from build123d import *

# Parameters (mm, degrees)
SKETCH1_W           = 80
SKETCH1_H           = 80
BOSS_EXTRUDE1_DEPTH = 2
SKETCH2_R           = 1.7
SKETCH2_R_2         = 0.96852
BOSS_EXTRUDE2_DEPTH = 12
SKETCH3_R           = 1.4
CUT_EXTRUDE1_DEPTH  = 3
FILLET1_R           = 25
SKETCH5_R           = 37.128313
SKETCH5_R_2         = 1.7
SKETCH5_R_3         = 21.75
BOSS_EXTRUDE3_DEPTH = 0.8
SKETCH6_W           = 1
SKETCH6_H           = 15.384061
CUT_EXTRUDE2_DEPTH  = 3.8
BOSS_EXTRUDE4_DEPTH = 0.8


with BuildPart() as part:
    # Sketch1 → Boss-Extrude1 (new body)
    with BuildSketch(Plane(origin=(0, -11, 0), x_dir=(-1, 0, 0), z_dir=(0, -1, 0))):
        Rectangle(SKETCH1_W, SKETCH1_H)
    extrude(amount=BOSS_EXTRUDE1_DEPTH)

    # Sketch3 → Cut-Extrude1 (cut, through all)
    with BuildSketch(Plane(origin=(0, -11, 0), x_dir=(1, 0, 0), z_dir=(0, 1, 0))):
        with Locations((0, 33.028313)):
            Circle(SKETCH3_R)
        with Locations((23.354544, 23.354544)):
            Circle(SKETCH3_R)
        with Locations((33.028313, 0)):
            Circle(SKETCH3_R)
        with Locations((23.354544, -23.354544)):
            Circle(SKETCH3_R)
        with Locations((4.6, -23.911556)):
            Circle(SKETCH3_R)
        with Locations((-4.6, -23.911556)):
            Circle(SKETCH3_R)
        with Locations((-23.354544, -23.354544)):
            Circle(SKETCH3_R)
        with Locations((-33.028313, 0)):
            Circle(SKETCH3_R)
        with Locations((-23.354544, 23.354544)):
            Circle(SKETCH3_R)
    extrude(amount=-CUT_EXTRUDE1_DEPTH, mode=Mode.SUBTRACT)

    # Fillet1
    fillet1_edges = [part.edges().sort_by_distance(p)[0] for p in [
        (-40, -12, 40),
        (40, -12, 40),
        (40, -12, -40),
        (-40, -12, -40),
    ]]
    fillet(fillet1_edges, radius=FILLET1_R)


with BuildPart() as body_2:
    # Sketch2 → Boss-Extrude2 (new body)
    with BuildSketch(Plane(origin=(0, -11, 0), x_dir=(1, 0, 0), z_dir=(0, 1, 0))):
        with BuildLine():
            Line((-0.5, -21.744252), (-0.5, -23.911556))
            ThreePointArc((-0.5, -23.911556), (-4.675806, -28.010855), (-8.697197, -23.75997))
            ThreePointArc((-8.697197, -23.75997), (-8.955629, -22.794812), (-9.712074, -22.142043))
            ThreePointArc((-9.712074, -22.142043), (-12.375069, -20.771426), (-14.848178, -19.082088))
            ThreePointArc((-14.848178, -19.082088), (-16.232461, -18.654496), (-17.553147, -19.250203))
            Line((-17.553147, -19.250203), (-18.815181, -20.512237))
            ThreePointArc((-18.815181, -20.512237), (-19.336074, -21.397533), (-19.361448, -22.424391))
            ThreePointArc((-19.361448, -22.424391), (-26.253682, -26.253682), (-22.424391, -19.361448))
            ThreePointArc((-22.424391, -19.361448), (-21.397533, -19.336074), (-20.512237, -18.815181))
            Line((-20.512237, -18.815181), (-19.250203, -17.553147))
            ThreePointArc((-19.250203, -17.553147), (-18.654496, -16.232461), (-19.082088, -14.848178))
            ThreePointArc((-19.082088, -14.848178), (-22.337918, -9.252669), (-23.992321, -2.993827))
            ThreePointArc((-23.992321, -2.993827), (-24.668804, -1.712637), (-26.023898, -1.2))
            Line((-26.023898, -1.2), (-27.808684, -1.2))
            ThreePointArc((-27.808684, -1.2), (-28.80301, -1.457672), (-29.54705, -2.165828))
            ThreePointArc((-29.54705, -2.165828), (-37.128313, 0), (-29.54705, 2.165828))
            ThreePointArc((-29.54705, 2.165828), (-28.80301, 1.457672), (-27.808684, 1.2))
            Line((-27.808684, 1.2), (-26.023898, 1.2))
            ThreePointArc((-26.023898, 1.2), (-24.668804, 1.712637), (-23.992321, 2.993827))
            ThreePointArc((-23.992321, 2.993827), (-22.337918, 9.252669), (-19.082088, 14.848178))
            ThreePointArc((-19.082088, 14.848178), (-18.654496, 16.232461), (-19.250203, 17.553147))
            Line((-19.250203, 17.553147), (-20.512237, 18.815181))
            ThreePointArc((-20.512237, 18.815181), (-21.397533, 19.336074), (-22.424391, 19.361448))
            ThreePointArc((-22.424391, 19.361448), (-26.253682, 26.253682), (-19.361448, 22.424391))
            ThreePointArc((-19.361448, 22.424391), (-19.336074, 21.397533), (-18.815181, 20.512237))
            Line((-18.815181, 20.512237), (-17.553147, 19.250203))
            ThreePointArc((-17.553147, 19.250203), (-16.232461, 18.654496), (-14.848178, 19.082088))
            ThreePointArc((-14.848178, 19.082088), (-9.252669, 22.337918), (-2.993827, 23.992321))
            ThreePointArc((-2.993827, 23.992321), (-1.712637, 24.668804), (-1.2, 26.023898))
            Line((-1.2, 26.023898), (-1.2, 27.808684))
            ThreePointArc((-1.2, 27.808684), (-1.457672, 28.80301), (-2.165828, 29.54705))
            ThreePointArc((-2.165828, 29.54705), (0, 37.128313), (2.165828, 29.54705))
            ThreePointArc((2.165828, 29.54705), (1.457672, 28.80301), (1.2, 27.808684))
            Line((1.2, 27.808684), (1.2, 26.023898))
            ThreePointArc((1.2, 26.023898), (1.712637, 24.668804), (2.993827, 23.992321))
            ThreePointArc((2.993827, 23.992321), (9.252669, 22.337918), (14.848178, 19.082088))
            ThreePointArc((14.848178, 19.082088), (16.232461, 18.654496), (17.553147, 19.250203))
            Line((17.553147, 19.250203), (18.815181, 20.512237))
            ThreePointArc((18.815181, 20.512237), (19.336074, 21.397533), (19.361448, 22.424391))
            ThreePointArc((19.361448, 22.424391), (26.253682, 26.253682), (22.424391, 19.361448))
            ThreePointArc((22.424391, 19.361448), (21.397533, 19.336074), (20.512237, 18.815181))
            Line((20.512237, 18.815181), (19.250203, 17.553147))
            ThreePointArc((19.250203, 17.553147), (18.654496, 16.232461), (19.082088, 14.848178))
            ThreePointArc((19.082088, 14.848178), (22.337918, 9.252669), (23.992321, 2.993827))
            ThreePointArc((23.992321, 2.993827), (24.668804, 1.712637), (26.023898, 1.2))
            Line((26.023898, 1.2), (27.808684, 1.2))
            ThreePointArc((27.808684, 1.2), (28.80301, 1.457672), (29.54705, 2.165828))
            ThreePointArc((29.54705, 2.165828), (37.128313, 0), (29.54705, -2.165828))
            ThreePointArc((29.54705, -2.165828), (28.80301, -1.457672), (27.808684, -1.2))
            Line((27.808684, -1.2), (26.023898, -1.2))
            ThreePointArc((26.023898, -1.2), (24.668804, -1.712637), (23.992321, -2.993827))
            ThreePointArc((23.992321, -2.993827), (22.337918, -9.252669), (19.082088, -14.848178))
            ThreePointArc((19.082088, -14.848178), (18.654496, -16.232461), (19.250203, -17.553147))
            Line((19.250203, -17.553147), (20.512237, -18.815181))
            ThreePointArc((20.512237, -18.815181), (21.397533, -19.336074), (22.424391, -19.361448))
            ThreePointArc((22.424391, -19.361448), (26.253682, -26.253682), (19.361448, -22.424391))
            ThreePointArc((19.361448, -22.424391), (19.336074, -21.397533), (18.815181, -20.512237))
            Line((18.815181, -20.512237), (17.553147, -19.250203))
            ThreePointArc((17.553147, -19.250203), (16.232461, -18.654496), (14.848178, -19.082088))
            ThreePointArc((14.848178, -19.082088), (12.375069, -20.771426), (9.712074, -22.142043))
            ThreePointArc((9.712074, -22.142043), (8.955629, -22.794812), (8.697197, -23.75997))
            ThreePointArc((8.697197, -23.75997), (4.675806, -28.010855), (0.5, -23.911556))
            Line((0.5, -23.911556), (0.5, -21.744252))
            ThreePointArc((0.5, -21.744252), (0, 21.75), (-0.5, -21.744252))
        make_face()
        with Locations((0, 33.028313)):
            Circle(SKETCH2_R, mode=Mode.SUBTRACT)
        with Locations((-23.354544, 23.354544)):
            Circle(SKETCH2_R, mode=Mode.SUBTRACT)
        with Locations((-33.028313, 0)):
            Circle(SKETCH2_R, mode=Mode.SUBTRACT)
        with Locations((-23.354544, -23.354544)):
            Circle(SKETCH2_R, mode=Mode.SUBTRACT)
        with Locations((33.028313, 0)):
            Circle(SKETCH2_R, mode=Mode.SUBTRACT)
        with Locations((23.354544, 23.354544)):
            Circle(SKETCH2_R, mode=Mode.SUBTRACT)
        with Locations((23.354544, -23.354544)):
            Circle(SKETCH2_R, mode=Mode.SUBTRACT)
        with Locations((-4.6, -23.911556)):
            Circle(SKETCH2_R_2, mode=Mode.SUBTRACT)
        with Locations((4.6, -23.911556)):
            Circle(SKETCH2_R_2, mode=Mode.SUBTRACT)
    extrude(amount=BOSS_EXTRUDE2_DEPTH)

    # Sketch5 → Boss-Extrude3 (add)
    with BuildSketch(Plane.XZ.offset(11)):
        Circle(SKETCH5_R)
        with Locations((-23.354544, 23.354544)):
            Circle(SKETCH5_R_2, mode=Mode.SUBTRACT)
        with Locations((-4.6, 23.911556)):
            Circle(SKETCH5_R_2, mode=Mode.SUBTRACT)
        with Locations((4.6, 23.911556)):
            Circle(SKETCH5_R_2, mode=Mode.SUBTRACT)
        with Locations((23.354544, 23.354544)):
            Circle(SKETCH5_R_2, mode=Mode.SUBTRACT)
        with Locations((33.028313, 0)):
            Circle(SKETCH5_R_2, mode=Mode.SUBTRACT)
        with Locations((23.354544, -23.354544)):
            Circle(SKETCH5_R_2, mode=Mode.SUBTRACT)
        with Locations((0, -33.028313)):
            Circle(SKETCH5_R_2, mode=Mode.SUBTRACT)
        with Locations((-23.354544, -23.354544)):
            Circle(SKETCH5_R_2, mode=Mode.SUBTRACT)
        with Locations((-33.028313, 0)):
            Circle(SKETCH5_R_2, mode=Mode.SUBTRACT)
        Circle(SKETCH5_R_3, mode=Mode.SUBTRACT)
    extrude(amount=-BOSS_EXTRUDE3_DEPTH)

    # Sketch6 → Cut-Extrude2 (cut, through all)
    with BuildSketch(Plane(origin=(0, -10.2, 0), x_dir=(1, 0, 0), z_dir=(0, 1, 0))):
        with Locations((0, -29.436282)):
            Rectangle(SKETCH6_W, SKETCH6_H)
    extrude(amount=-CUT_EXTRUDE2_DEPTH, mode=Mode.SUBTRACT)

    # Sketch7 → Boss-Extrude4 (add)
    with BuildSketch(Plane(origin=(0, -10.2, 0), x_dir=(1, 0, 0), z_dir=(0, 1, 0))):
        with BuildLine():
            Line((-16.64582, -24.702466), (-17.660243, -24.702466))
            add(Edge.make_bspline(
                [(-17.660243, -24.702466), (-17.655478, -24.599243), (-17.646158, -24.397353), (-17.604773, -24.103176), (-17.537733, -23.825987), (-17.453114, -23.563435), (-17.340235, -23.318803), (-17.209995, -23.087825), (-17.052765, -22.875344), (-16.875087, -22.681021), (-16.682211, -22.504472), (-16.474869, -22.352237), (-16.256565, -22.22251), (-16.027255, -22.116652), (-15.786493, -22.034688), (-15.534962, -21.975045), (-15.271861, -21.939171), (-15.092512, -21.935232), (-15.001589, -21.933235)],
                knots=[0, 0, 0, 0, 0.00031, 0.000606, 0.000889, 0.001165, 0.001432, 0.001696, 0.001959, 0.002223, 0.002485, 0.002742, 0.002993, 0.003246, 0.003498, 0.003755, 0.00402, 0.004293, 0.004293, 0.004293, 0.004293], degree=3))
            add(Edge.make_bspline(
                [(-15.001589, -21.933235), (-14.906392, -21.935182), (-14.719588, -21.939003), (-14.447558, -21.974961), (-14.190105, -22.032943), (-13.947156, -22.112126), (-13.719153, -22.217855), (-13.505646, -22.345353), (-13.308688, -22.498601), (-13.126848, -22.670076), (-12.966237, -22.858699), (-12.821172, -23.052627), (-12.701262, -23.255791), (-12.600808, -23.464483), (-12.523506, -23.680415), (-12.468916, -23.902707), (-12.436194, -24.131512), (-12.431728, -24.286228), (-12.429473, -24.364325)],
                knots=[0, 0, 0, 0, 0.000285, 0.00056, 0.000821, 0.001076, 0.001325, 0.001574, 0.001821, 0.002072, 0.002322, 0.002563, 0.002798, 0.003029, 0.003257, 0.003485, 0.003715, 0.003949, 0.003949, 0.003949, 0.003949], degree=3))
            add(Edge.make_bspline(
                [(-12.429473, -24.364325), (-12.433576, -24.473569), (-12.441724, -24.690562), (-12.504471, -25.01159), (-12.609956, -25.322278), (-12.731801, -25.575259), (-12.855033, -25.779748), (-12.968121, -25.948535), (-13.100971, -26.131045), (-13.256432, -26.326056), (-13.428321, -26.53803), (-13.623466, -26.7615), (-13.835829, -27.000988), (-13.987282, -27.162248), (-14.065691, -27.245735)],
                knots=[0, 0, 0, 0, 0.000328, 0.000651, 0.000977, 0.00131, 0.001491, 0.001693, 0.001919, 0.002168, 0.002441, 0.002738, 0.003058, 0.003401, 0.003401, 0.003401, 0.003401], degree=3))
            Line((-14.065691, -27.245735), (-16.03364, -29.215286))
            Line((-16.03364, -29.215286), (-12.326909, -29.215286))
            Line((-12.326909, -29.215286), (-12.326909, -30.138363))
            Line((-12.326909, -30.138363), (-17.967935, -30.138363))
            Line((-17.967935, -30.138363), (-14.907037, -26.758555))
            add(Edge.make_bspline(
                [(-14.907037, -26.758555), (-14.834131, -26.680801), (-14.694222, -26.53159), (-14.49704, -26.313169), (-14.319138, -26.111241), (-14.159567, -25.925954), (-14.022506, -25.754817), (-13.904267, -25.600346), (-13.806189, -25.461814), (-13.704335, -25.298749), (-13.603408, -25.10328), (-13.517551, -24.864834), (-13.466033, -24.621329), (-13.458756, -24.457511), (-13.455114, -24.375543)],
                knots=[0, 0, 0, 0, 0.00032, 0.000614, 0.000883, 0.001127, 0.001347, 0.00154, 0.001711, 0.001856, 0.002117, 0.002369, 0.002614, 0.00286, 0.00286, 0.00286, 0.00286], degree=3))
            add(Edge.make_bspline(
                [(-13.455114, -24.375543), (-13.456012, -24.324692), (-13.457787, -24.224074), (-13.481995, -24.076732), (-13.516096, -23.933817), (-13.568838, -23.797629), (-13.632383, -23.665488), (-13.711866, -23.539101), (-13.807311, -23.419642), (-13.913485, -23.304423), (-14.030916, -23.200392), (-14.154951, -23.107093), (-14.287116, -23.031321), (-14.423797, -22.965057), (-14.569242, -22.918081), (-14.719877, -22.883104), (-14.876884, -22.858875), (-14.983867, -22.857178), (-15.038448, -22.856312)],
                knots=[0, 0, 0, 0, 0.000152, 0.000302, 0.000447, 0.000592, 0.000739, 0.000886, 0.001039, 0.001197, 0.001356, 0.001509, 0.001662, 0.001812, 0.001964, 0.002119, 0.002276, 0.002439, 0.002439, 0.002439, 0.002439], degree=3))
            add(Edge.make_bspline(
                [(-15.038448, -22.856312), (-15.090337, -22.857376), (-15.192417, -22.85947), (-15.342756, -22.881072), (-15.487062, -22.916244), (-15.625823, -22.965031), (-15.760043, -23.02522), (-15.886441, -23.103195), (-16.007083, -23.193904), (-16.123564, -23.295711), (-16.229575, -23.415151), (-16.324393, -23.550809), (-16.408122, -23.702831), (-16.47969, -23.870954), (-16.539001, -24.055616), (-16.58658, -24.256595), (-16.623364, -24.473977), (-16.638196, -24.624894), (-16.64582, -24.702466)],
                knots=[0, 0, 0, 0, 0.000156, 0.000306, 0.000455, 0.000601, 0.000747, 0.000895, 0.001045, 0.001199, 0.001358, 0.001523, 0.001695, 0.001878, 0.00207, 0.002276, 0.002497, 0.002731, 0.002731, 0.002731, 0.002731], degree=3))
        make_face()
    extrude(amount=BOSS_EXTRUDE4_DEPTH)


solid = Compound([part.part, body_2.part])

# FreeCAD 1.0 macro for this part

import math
import FreeCAD as App
import Part
import Sketcher


def edges_at(feature, points):
    """Names of the edges that pass closest to the given points."""
    edges = feature.Shape.Edges
    near = lambda p: min(range(len(edges)), key=lambda i: edges[i].distToShape(Part.Vertex(*p))[0])
    return sorted({f"Edge{near(p) + 1}" for p in points})


def add_polygon(sketch, points):
    """Adds a closed chain of lines whose ends are joined by coincident constraints."""
    first, n = sketch.GeometryCount, len(points)
    for a, b in zip(points, points[1:] + points[:1]):
        sketch.addGeometry(Part.LineSegment(App.Vector(*a, 0), App.Vector(*b, 0)), False)
    for i in range(n):
        sketch.addConstraint(Sketcher.Constraint("Coincident", first + i, 2, first + (i + 1) % n, 1))

doc = App.newDocument("Part")
body = doc.addObject("PartDesign::Body", "Body")

# Sketch on XZ plane
sketch1 = body.newObject("Sketcher::SketchObject", "Sketch")
sketch1.AttachmentSupport = (doc.getObject("XZ_Plane"), [""])
sketch1.MapMode = "FlatFace"
sketch1.AttachmentOffset = App.Placement(App.Vector(0, 0, 11), App.Rotation())
add_polygon(sketch1, [(40, -40), (40, 40), (-40, 40), (-40, -40)])  # lines 0-3
sketch1.addConstraint(Sketcher.Constraint("Vertical", 0))
sketch1.addConstraint(Sketcher.Constraint("Horizontal", 1))
sketch1.addConstraint(Sketcher.Constraint("Vertical", 2))
sketch1.addConstraint(Sketcher.Constraint("Horizontal", 3))
sketch1.addConstraint(Sketcher.Constraint("Symmetric", 0, 2, 2, 2, -1, 1))
sketch1.addConstraint(Sketcher.Constraint("Equal", 3, 0))
sketch1.addConstraint(Sketcher.Constraint("DistanceX", 1, 2, 1, 1, 80.0))
pad1 = body.newObject("PartDesign::Pad", "Pad")
pad1.Profile = sketch1
pad1.Length = 2

# Sketch on XZ plane
sketch2 = body.newObject("Sketcher::SketchObject", "Sketch001")
sketch2.AttachmentSupport = (doc.getObject("XZ_Plane"), [""])
sketch2.MapMode = "FlatFace"
sketch2.AttachmentOffset = App.Placement(App.Vector(0, 0, 11), App.Rotation())
sketch2.addGeometry(Part.Circle(App.Vector(0, -33.028313, 0), App.Vector(0, 0, 1), 1.4), False)
sketch2.addGeometry(Part.Circle(App.Vector(23.354544, -23.354544, 0), App.Vector(0, 0, 1), 1.4), False)
sketch2.addGeometry(Part.Circle(App.Vector(33.028313, 0, 0), App.Vector(0, 0, 1), 1.4), False)
sketch2.addGeometry(Part.Circle(App.Vector(23.354544, 23.354544, 0), App.Vector(0, 0, 1), 1.4), False)
sketch2.addGeometry(Part.Circle(App.Vector(4.6, 23.911556, 0), App.Vector(0, 0, 1), 1.4), False)
sketch2.addGeometry(Part.Circle(App.Vector(-4.6, 23.911556, 0), App.Vector(0, 0, 1), 1.4), False)
sketch2.addGeometry(Part.Circle(App.Vector(-23.354544, 23.354544, 0), App.Vector(0, 0, 1), 1.4), False)
sketch2.addGeometry(Part.Circle(App.Vector(-33.028313, 0, 0), App.Vector(0, 0, 1), 1.4), False)
sketch2.addGeometry(Part.Circle(App.Vector(-23.354544, -23.354544, 0), App.Vector(0, 0, 1), 1.4), False)
sketch2.addConstraint(Sketcher.Constraint("Equal", 0, 1))
sketch2.addConstraint(Sketcher.Constraint("Equal", 1, 2))
sketch2.addConstraint(Sketcher.Constraint("Equal", 2, 3))
sketch2.addConstraint(Sketcher.Constraint("Equal", 3, 4))
sketch2.addConstraint(Sketcher.Constraint("Equal", 4, 5))
sketch2.addConstraint(Sketcher.Constraint("Equal", 5, 6))
sketch2.addConstraint(Sketcher.Constraint("Equal", 6, 7))
sketch2.addConstraint(Sketcher.Constraint("Equal", 7, 8))
sketch2.addConstraint(Sketcher.Constraint("Symmetric", 1, 3, 6, 3, -1, 1))
sketch2.addConstraint(Sketcher.Constraint("Symmetric", 2, 3, 7, 3, -1, 1))
sketch2.addConstraint(Sketcher.Constraint("Symmetric", 3, 3, 8, 3, -1, 1))
sketch2.addConstraint(Sketcher.Constraint("Symmetric", 4, 3, 5, 3, -2))
sketch2.addConstraint(Sketcher.Constraint("Symmetric", 3, 3, 6, 3, -2))
sketch2.addConstraint(Sketcher.Constraint("PointOnObject", 0, 3, -2))
sketch2.addConstraint(Sketcher.Constraint("PointOnObject", 2, 3, -1))
sketch2.addConstraint(Sketcher.Constraint("Diameter", 0, 2.8))
sketch2.addConstraint(Sketcher.Constraint("DistanceX", -1, 1, 4, 3, 4.6))
sketch2.addConstraint(Sketcher.Constraint("DistanceY", 1, 3, 4, 3, 47.2661))
sketch2.addConstraint(Sketcher.Constraint("DistanceY", 0, 3, 1, 3, 9.673769))
sketch2.addConstraint(Sketcher.Constraint("DistanceX", 1, 3, 2, 3, 9.673769))
sketch2.addConstraint(Sketcher.Constraint("DistanceY", 0, 3, -1, 1, 33.028313))
sketch2.addConstraint(Sketcher.Constraint("DistanceX", -1, 1, 1, 3, 23.354544))
pocket1 = body.newObject("PartDesign::Pocket", "Pocket")
pocket1.Profile = sketch2
pocket1.Type = "ThroughAll"
pocket1.Reversed = True
doc.recompute()

fillet = body.newObject("PartDesign::Fillet", "Fillet")
fillet.Base = (pocket1, edges_at(pocket1, [
    (-40, -12, 40),
    (40, -12, 40),
    (40, -12, -40),
    (-40, -12, -40),
]))
fillet.Radius = 25
body2 = doc.addObject("PartDesign::Body", "Body001")

# Sketch on XZ plane
sketch3 = body2.newObject("Sketcher::SketchObject", "Sketch002")
sketch3.AttachmentSupport = (doc.getObject("XZ_Plane001"), [""])
sketch3.MapMode = "FlatFace"
sketch3.AttachmentOffset = App.Placement(App.Vector(0, 0, 11), App.Rotation())
sketch3.addGeometry(Part.LineSegment(App.Vector(-0.5, 23.911556, 0), App.Vector(-0.5, 21.744252, 0)), False)
sketch3.addGeometry(Part.ArcOfCircle(Part.Circle(App.Vector(0, 0, 0), App.Vector(0, 0, 1), 21.75), math.radians(91.31726), math.radians(448.68274)), False)
sketch3.addGeometry(Part.LineSegment(App.Vector(0.5, 21.744252, 0), App.Vector(0.5, 23.911556, 0)), False)
sketch3.addGeometry(Part.ArcOfCircle(Part.Circle(App.Vector(4.6, 23.911556, 0), App.Vector(0, 0, 1), 4.1), math.radians(-2.11883), math.radians(179.999997)), False)
sketch3.addGeometry(Part.ArcOfCircle(Part.Circle(App.Vector(10.394198, 23.697183, 0), App.Vector(0, 0, 1), 1.698162), math.radians(177.881096), math.radians(246.316531)), False)
sketch3.addGeometry(Part.ArcOfCircle(Part.Circle(App.Vector(0.000015, 0.000022, 0), App.Vector(0, 0, 1), 24.178362), math.radians(52.112754), math.radians(66.31651)), False)
sketch3.addGeometry(Part.ArcOfCircle(Part.Circle(App.Vector(16.105464, 20.697887, 0), App.Vector(0, 0, 1), 2.047333), math.radians(-127.887216), math.radians(-45.000017)), False)
sketch3.addGeometry(Part.LineSegment(App.Vector(17.553147, 19.250203, 0), App.Vector(18.815181, 20.512237, 0)), False)
sketch3.addGeometry(Part.ArcOfCircle(Part.Circle(App.Vector(17.367497, 21.95992, 0), App.Vector(0, 0, 1), 2.047333), math.radians(-44.999975), math.radians(13.112658)), False)
sketch3.addGeometry(Part.ArcOfCircle(Part.Circle(App.Vector(23.354544, 23.354544, 0), App.Vector(0, 0, 1), 4.1), math.radians(-103.112665), math.radians(193.112665)), False)
sketch3.addGeometry(Part.ArcOfCircle(Part.Circle(App.Vector(21.95992, 17.367497, 0), App.Vector(0, 0, 1), 2.047333), math.radians(76.887342), math.radians(134.999975)), False)
sketch3.addGeometry(Part.LineSegment(App.Vector(20.512237, 18.815181, 0), App.Vector(19.250203, 17.553147, 0)), False)
sketch3.addGeometry(Part.ArcOfCircle(Part.Circle(App.Vector(20.697887, 16.105464, 0), App.Vector(0, 0, 1), 2.047333), math.radians(135.000017), math.radians(217.887216)), False)
sketch3.addGeometry(Part.ArcOfCircle(Part.Circle(App.Vector(-0.000003, -0.000001, 0), App.Vector(0, 0, 1), 24.178392), math.radians(7.11276), math.radians(37.887241)), False)
sketch3.addGeometry(Part.ArcOfCircle(Part.Circle(App.Vector(26.023898, 3.247333, 0), App.Vector(0, 0, 1), 2.047333), math.radians(-172.887244), math.radians(-90.000005)), False)
sketch3.addGeometry(Part.LineSegment(App.Vector(26.023898, 1.2, 0), App.Vector(27.808684, 1.2, 0)), False)
sketch3.addGeometry(Part.ArcOfCircle(Part.Circle(App.Vector(27.808683, 3.247333, 0), App.Vector(0, 0, 1), 2.047333), math.radians(-89.999976), math.radians(-31.887335)), False)
sketch3.addGeometry(Part.ArcOfCircle(Part.Circle(App.Vector(33.028313, 0, 0), App.Vector(0, 0, 1), 4.1), math.radians(-148.112662), math.radians(148.112662)), False)
sketch3.addGeometry(Part.ArcOfCircle(Part.Circle(App.Vector(27.808683, -3.247333, 0), App.Vector(0, 0, 1), 2.047333), math.radians(31.887335), math.radians(89.999976)), False)
sketch3.addGeometry(Part.LineSegment(App.Vector(27.808684, -1.2, 0), App.Vector(26.023898, -1.2, 0)), False)
sketch3.addGeometry(Part.ArcOfCircle(Part.Circle(App.Vector(26.023898, -3.247333, 0), App.Vector(0, 0, 1), 2.047333), math.radians(90.000005), math.radians(172.887244)), False)
sketch3.addGeometry(Part.ArcOfCircle(Part.Circle(App.Vector(-0.000003, 0.000001, 0), App.Vector(0, 0, 1), 24.178392), math.radians(-37.887241), math.radians(-7.11276)), False)
sketch3.addGeometry(Part.ArcOfCircle(Part.Circle(App.Vector(20.697887, -16.105464, 0), App.Vector(0, 0, 1), 2.047333), math.radians(142.112784), math.radians(224.999983)), False)
sketch3.addGeometry(Part.LineSegment(App.Vector(19.250203, -17.553147, 0), App.Vector(20.512237, -18.815181, 0)), False)
sketch3.addGeometry(Part.ArcOfCircle(Part.Circle(App.Vector(21.95992, -17.367497, 0), App.Vector(0, 0, 1), 2.047333), math.radians(-134.999975), math.radians(-76.887342)), False)
sketch3.addGeometry(Part.ArcOfCircle(Part.Circle(App.Vector(23.354544, -23.354544, 0), App.Vector(0, 0, 1), 4.1), math.radians(166.887335), math.radians(463.112665)), False)
sketch3.addGeometry(Part.ArcOfCircle(Part.Circle(App.Vector(17.367497, -21.95992, 0), App.Vector(0, 0, 1), 2.047333), math.radians(-13.112658), math.radians(44.999975)), False)
sketch3.addGeometry(Part.LineSegment(App.Vector(18.815181, -20.512237, 0), App.Vector(17.553147, -19.250203, 0)), False)
sketch3.addGeometry(Part.ArcOfCircle(Part.Circle(App.Vector(16.105464, -20.697887, 0), App.Vector(0, 0, 1), 2.047333), math.radians(45.000017), math.radians(127.887216)), False)
sketch3.addGeometry(Part.ArcOfCircle(Part.Circle(App.Vector(-0.000001, 0.000003, 0), App.Vector(0, 0, 1), 24.178392), math.radians(-82.88724), math.radians(-52.112759)), False)
sketch3.addGeometry(Part.ArcOfCircle(Part.Circle(App.Vector(3.247333, -26.023898, 0), App.Vector(0, 0, 1), 2.047333), math.radians(97.112756), math.radians(179.999995)), False)
sketch3.addGeometry(Part.LineSegment(App.Vector(1.2, -26.023898, 0), App.Vector(1.2, -27.808684, 0)), False)
sketch3.addGeometry(Part.ArcOfCircle(Part.Circle(App.Vector(3.247333, -27.808683, 0), App.Vector(0, 0, 1), 2.047333), math.radians(-179.999976), math.radians(-121.887335)), False)
sketch3.addGeometry(Part.ArcOfCircle(Part.Circle(App.Vector(0, -33.028313, 0), App.Vector(0, 0, 1), 4.1), math.radians(121.887338), math.radians(418.112662)), False)
sketch3.addGeometry(Part.ArcOfCircle(Part.Circle(App.Vector(-3.247333, -27.808683, 0), App.Vector(0, 0, 1), 2.047333), math.radians(-58.112665), math.radians(-0.000024)), False)
sketch3.addGeometry(Part.LineSegment(App.Vector(-1.2, -27.808684, 0), App.Vector(-1.2, -26.023898, 0)), False)
sketch3.addGeometry(Part.ArcOfCircle(Part.Circle(App.Vector(-3.247333, -26.023898, 0), App.Vector(0, 0, 1), 2.047333), math.radians(0.000005), math.radians(82.887244)), False)
sketch3.addGeometry(Part.ArcOfCircle(Part.Circle(App.Vector(0.000001, 0.000003, 0), App.Vector(0, 0, 1), 24.178392), math.radians(-127.887241), math.radians(-97.11276)), False)
sketch3.addGeometry(Part.ArcOfCircle(Part.Circle(App.Vector(-16.105464, -20.697887, 0), App.Vector(0, 0, 1), 2.047333), math.radians(52.112784), math.radians(134.999983)), False)
sketch3.addGeometry(Part.LineSegment(App.Vector(-17.553147, -19.250203, 0), App.Vector(-18.815181, -20.512237, 0)), False)
sketch3.addGeometry(Part.ArcOfCircle(Part.Circle(App.Vector(-17.367497, -21.95992, 0), App.Vector(0, 0, 1), 2.047333), math.radians(135.000025), math.radians(193.112658)), False)
sketch3.addGeometry(Part.ArcOfCircle(Part.Circle(App.Vector(-23.354544, -23.354544, 0), App.Vector(0, 0, 1), 4.1), math.radians(76.887335), math.radians(373.112665)), False)
sketch3.addGeometry(Part.ArcOfCircle(Part.Circle(App.Vector(-21.95992, -17.367497, 0), App.Vector(0, 0, 1), 2.047333), math.radians(-103.112658), math.radians(-45.000025)), False)
sketch3.addGeometry(Part.LineSegment(App.Vector(-20.512237, -18.815181, 0), App.Vector(-19.250203, -17.553147, 0)), False)
sketch3.addGeometry(Part.ArcOfCircle(Part.Circle(App.Vector(-20.697887, -16.105464, 0), App.Vector(0, 0, 1), 2.047333), math.radians(-44.999983), math.radians(37.887216)), False)
sketch3.addGeometry(Part.ArcOfCircle(Part.Circle(App.Vector(0.000003, 0.000001, 0), App.Vector(0, 0, 1), 24.178392), math.radians(-172.88724), math.radians(-142.112759)), False)
sketch3.addGeometry(Part.ArcOfCircle(Part.Circle(App.Vector(-26.023898, -3.247333, 0), App.Vector(0, 0, 1), 2.047333), math.radians(7.112756), math.radians(89.999995)), False)
sketch3.addGeometry(Part.LineSegment(App.Vector(-26.023898, -1.2, 0), App.Vector(-27.808684, -1.2, 0)), False)
sketch3.addGeometry(Part.ArcOfCircle(Part.Circle(App.Vector(-27.808683, -3.247333, 0), App.Vector(0, 0, 1), 2.047333), math.radians(90.000024), math.radians(148.112665)), False)
sketch3.addGeometry(Part.ArcOfCircle(Part.Circle(App.Vector(-33.028313, 0, 0), App.Vector(0, 0, 1), 4.1), math.radians(31.887338), math.radians(328.112662)), False)
sketch3.addGeometry(Part.ArcOfCircle(Part.Circle(App.Vector(-27.808683, 3.247333, 0), App.Vector(0, 0, 1), 2.047333), math.radians(-148.112665), math.radians(-90.000024)), False)
sketch3.addGeometry(Part.LineSegment(App.Vector(-27.808684, 1.2, 0), App.Vector(-26.023898, 1.2, 0)), False)
sketch3.addGeometry(Part.ArcOfCircle(Part.Circle(App.Vector(-26.023898, 3.247333, 0), App.Vector(0, 0, 1), 2.047333), math.radians(-89.999995), math.radians(-7.112756)), False)
sketch3.addGeometry(Part.ArcOfCircle(Part.Circle(App.Vector(0.000003, -0.000001, 0), App.Vector(0, 0, 1), 24.178392), math.radians(142.112759), math.radians(172.88724)), False)
sketch3.addGeometry(Part.ArcOfCircle(Part.Circle(App.Vector(-20.697887, 16.105464, 0), App.Vector(0, 0, 1), 2.047333), math.radians(-37.887216), math.radians(44.999983)), False)
sketch3.addGeometry(Part.LineSegment(App.Vector(-19.250203, 17.553147, 0), App.Vector(-20.512237, 18.815181, 0)), False)
sketch3.addGeometry(Part.ArcOfCircle(Part.Circle(App.Vector(-21.95992, 17.367497, 0), App.Vector(0, 0, 1), 2.047333), math.radians(45.000025), math.radians(103.112658)), False)
sketch3.addGeometry(Part.ArcOfCircle(Part.Circle(App.Vector(-23.354544, 23.354544, 0), App.Vector(0, 0, 1), 4.1), math.radians(-13.112665), math.radians(283.112665)), False)
sketch3.addGeometry(Part.ArcOfCircle(Part.Circle(App.Vector(-17.367497, 21.95992, 0), App.Vector(0, 0, 1), 2.047333), math.radians(166.887342), math.radians(224.999975)), False)
sketch3.addGeometry(Part.LineSegment(App.Vector(-18.815181, 20.512237, 0), App.Vector(-17.553147, 19.250203, 0)), False)
sketch3.addGeometry(Part.ArcOfCircle(Part.Circle(App.Vector(-16.105464, 20.697887, 0), App.Vector(0, 0, 1), 2.047333), math.radians(-134.999983), math.radians(-52.112784)), False)
sketch3.addGeometry(Part.ArcOfCircle(Part.Circle(App.Vector(-0.000015, 0.000022, 0), App.Vector(0, 0, 1), 24.178362), math.radians(113.68349), math.radians(127.887246)), False)
sketch3.addGeometry(Part.ArcOfCircle(Part.Circle(App.Vector(-10.394198, 23.697183, 0), App.Vector(0, 0, 1), 1.698162), math.radians(-66.316531), math.radians(2.118904)), False)
sketch3.addGeometry(Part.ArcOfCircle(Part.Circle(App.Vector(-4.6, 23.911556, 0), App.Vector(0, 0, 1), 4.1), math.radians(0.000003), math.radians(182.11883)), False)
sketch3.addGeometry(Part.Circle(App.Vector(23.354544, 23.354544, 0), App.Vector(0, 0, 1), 1.7), False)
sketch3.addGeometry(Part.Circle(App.Vector(4.6, 23.911556, 0), App.Vector(0, 0, 1), 0.96852), False)
sketch3.addGeometry(Part.Circle(App.Vector(33.028313, 0, 0), App.Vector(0, 0, 1), 1.7), False)
sketch3.addGeometry(Part.Circle(App.Vector(-4.6, 23.911556, 0), App.Vector(0, 0, 1), 0.96852), False)
sketch3.addGeometry(Part.Circle(App.Vector(-23.354544, 23.354544, 0), App.Vector(0, 0, 1), 1.7), False)
sketch3.addGeometry(Part.Circle(App.Vector(-33.028313, 0, 0), App.Vector(0, 0, 1), 1.7), False)
sketch3.addGeometry(Part.Circle(App.Vector(23.354544, -23.354544, 0), App.Vector(0, 0, 1), 1.7), False)
sketch3.addGeometry(Part.Circle(App.Vector(0, -33.028313, 0), App.Vector(0, 0, 1), 1.7), False)
sketch3.addGeometry(Part.Circle(App.Vector(-23.354544, -23.354544, 0), App.Vector(0, 0, 1), 1.7), False)
sketch3.addConstraint(Sketcher.Constraint("Coincident", 0, 2, 1, 1))
sketch3.addConstraint(Sketcher.Constraint("Coincident", 1, 2, 2, 1))
sketch3.addConstraint(Sketcher.Constraint("Tangent", 2, 2, 3, 2))
sketch3.addConstraint(Sketcher.Constraint("Tangent", 3, 1, 4, 1))
sketch3.addConstraint(Sketcher.Constraint("Tangent", 4, 2, 5, 2))
sketch3.addConstraint(Sketcher.Constraint("Tangent", 5, 1, 6, 1))
sketch3.addConstraint(Sketcher.Constraint("Tangent", 6, 2, 7, 1))
sketch3.addConstraint(Sketcher.Constraint("Tangent", 7, 2, 8, 1))
sketch3.addConstraint(Sketcher.Constraint("Tangent", 8, 2, 9, 2))
sketch3.addConstraint(Sketcher.Constraint("Tangent", 9, 1, 10, 1))
sketch3.addConstraint(Sketcher.Constraint("Tangent", 10, 2, 11, 1))
sketch3.addConstraint(Sketcher.Constraint("Tangent", 11, 2, 12, 1))
sketch3.addConstraint(Sketcher.Constraint("Tangent", 12, 2, 13, 2))
sketch3.addConstraint(Sketcher.Constraint("Tangent", 13, 1, 14, 1))
sketch3.addConstraint(Sketcher.Constraint("Tangent", 14, 2, 15, 1))
sketch3.addConstraint(Sketcher.Constraint("Tangent", 15, 2, 16, 1))
sketch3.addConstraint(Sketcher.Constraint("Tangent", 16, 2, 17, 2))
sketch3.addConstraint(Sketcher.Constraint("Tangent", 17, 1, 18, 1))
sketch3.addConstraint(Sketcher.Constraint("Tangent", 18, 2, 19, 1))
sketch3.addConstraint(Sketcher.Constraint("Tangent", 19, 2, 20, 1))
sketch3.addConstraint(Sketcher.Constraint("Tangent", 20, 2, 21, 2))
sketch3.addConstraint(Sketcher.Constraint("Tangent", 21, 1, 22, 1))
sketch3.addConstraint(Sketcher.Constraint("Tangent", 22, 2, 23, 1))
sketch3.addConstraint(Sketcher.Constraint("Tangent", 23, 2, 24, 1))
sketch3.addConstraint(Sketcher.Constraint("Tangent", 24, 2, 25, 2))
sketch3.addConstraint(Sketcher.Constraint("Tangent", 25, 1, 26, 1))
sketch3.addConstraint(Sketcher.Constraint("Tangent", 26, 2, 27, 1))
sketch3.addConstraint(Sketcher.Constraint("Tangent", 27, 2, 28, 1))
sketch3.addConstraint(Sketcher.Constraint("Tangent", 28, 2, 29, 2))
sketch3.addConstraint(Sketcher.Constraint("Tangent", 29, 1, 30, 1))
sketch3.addConstraint(Sketcher.Constraint("Tangent", 30, 2, 31, 1))
sketch3.addConstraint(Sketcher.Constraint("Tangent", 31, 2, 32, 1))
sketch3.addConstraint(Sketcher.Constraint("Tangent", 32, 2, 33, 2))
sketch3.addConstraint(Sketcher.Constraint("Tangent", 33, 1, 34, 1))
sketch3.addConstraint(Sketcher.Constraint("Tangent", 34, 2, 35, 1))
sketch3.addConstraint(Sketcher.Constraint("Tangent", 35, 2, 36, 1))
sketch3.addConstraint(Sketcher.Constraint("Tangent", 36, 2, 37, 2))
sketch3.addConstraint(Sketcher.Constraint("Tangent", 37, 1, 38, 1))
sketch3.addConstraint(Sketcher.Constraint("Tangent", 38, 2, 39, 1))
sketch3.addConstraint(Sketcher.Constraint("Tangent", 39, 2, 40, 1))
sketch3.addConstraint(Sketcher.Constraint("Tangent", 40, 2, 41, 2))
sketch3.addConstraint(Sketcher.Constraint("Tangent", 41, 1, 42, 1))
sketch3.addConstraint(Sketcher.Constraint("Tangent", 42, 2, 43, 1))
sketch3.addConstraint(Sketcher.Constraint("Tangent", 43, 2, 44, 1))
sketch3.addConstraint(Sketcher.Constraint("Tangent", 44, 2, 45, 2))
sketch3.addConstraint(Sketcher.Constraint("Tangent", 45, 1, 46, 1))
sketch3.addConstraint(Sketcher.Constraint("Tangent", 46, 2, 47, 1))
sketch3.addConstraint(Sketcher.Constraint("Tangent", 47, 2, 48, 1))
sketch3.addConstraint(Sketcher.Constraint("Tangent", 48, 2, 49, 2))
sketch3.addConstraint(Sketcher.Constraint("Tangent", 49, 1, 50, 1))
sketch3.addConstraint(Sketcher.Constraint("Tangent", 50, 2, 51, 1))
sketch3.addConstraint(Sketcher.Constraint("Tangent", 51, 2, 52, 1))
sketch3.addConstraint(Sketcher.Constraint("Tangent", 52, 2, 53, 2))
sketch3.addConstraint(Sketcher.Constraint("Tangent", 53, 1, 54, 1))
sketch3.addConstraint(Sketcher.Constraint("Tangent", 54, 2, 55, 1))
sketch3.addConstraint(Sketcher.Constraint("Tangent", 55, 2, 56, 1))
sketch3.addConstraint(Sketcher.Constraint("Tangent", 56, 2, 57, 2))
sketch3.addConstraint(Sketcher.Constraint("Tangent", 57, 1, 58, 1))
sketch3.addConstraint(Sketcher.Constraint("Tangent", 58, 2, 59, 1))
sketch3.addConstraint(Sketcher.Constraint("Tangent", 59, 2, 60, 1))
sketch3.addConstraint(Sketcher.Constraint("Tangent", 60, 2, 61, 2))
sketch3.addConstraint(Sketcher.Constraint("Tangent", 61, 1, 62, 1))
sketch3.addConstraint(Sketcher.Constraint("Tangent", 62, 2, 63, 2))
sketch3.addConstraint(Sketcher.Constraint("Tangent", 63, 1, 0, 1))
sketch3.addConstraint(Sketcher.Constraint("Vertical", 0))
sketch3.addConstraint(Sketcher.Constraint("Vertical", 2))
sketch3.addConstraint(Sketcher.Constraint("Horizontal", 15))
sketch3.addConstraint(Sketcher.Constraint("Horizontal", 19))
sketch3.addConstraint(Sketcher.Constraint("Vertical", 31))
sketch3.addConstraint(Sketcher.Constraint("Vertical", 35))
sketch3.addConstraint(Sketcher.Constraint("Horizontal", 47))
sketch3.addConstraint(Sketcher.Constraint("Horizontal", 51))
sketch3.addConstraint(Sketcher.Constraint("Coincident", 1, 3, -1, 1))
sketch3.addConstraint(Sketcher.Constraint("Coincident", 13, 3, -1, 1))
sketch3.addConstraint(Sketcher.Constraint("Coincident", 21, 3, -1, 1))
sketch3.addConstraint(Sketcher.Constraint("Coincident", 29, 3, -1, 1))
sketch3.addConstraint(Sketcher.Constraint("Coincident", 37, 3, -1, 1))
sketch3.addConstraint(Sketcher.Constraint("Coincident", 45, 3, -1, 1))
sketch3.addConstraint(Sketcher.Constraint("Coincident", 53, 3, -1, 1))
sketch3.addConstraint(Sketcher.Constraint("Coincident", 64, 3, 9, 3))
sketch3.addConstraint(Sketcher.Constraint("Coincident", 65, 3, 3, 3))
sketch3.addConstraint(Sketcher.Constraint("Coincident", 66, 3, 17, 3))
sketch3.addConstraint(Sketcher.Constraint("Coincident", 67, 3, 63, 3))
sketch3.addConstraint(Sketcher.Constraint("Coincident", 68, 3, 57, 3))
sketch3.addConstraint(Sketcher.Constraint("Coincident", 69, 3, 49, 3))
sketch3.addConstraint(Sketcher.Constraint("Coincident", 70, 3, 25, 3))
sketch3.addConstraint(Sketcher.Constraint("Coincident", 71, 3, 33, 3))
sketch3.addConstraint(Sketcher.Constraint("Coincident", 72, 3, 41, 3))
sketch3.addConstraint(Sketcher.Constraint("Equal", 6, 8))
sketch3.addConstraint(Sketcher.Constraint("Equal", 3, 9))
sketch3.addConstraint(Sketcher.Constraint("Equal", 8, 10))
sketch3.addConstraint(Sketcher.Constraint("Equal", 10, 12))
sketch3.addConstraint(Sketcher.Constraint("Equal", 12, 14))
sketch3.addConstraint(Sketcher.Constraint("Equal", 14, 16))
sketch3.addConstraint(Sketcher.Constraint("Equal", 9, 17))
sketch3.addConstraint(Sketcher.Constraint("Equal", 16, 18))
sketch3.addConstraint(Sketcher.Constraint("Equal", 18, 20))
sketch3.addConstraint(Sketcher.Constraint("Equal", 13, 21))
sketch3.addConstraint(Sketcher.Constraint("Equal", 20, 22))
sketch3.addConstraint(Sketcher.Constraint("Equal", 22, 24))
sketch3.addConstraint(Sketcher.Constraint("Equal", 17, 25))
sketch3.addConstraint(Sketcher.Constraint("Equal", 24, 26))
sketch3.addConstraint(Sketcher.Constraint("Equal", 26, 28))
sketch3.addConstraint(Sketcher.Constraint("Equal", 21, 29))
sketch3.addConstraint(Sketcher.Constraint("Equal", 28, 30))
sketch3.addConstraint(Sketcher.Constraint("Equal", 30, 32))
sketch3.addConstraint(Sketcher.Constraint("Equal", 25, 33))
sketch3.addConstraint(Sketcher.Constraint("Equal", 32, 34))
sketch3.addConstraint(Sketcher.Constraint("Equal", 34, 36))
sketch3.addConstraint(Sketcher.Constraint("Equal", 29, 37))
sketch3.addConstraint(Sketcher.Constraint("Equal", 36, 38))
sketch3.addConstraint(Sketcher.Constraint("Equal", 38, 40))
sketch3.addConstraint(Sketcher.Constraint("Equal", 33, 41))
sketch3.addConstraint(Sketcher.Constraint("Equal", 40, 42))
sketch3.addConstraint(Sketcher.Constraint("Equal", 42, 44))
sketch3.addConstraint(Sketcher.Constraint("Equal", 37, 45))
sketch3.addConstraint(Sketcher.Constraint("Equal", 44, 46))
sketch3.addConstraint(Sketcher.Constraint("Equal", 46, 48))
sketch3.addConstraint(Sketcher.Constraint("Equal", 41, 49))
sketch3.addConstraint(Sketcher.Constraint("Equal", 48, 50))
sketch3.addConstraint(Sketcher.Constraint("Equal", 50, 52))
sketch3.addConstraint(Sketcher.Constraint("Equal", 45, 53))
sketch3.addConstraint(Sketcher.Constraint("Equal", 52, 54))
sketch3.addConstraint(Sketcher.Constraint("Equal", 54, 56))
sketch3.addConstraint(Sketcher.Constraint("Equal", 49, 57))
sketch3.addConstraint(Sketcher.Constraint("Equal", 56, 58))
sketch3.addConstraint(Sketcher.Constraint("Equal", 58, 60))
sketch3.addConstraint(Sketcher.Constraint("Equal", 5, 61))
sketch3.addConstraint(Sketcher.Constraint("Equal", 4, 62))
sketch3.addConstraint(Sketcher.Constraint("Equal", 57, 63))
sketch3.addConstraint(Sketcher.Constraint("Equal", 64, 66))
sketch3.addConstraint(Sketcher.Constraint("Equal", 65, 67))
sketch3.addConstraint(Sketcher.Constraint("Equal", 66, 68))
sketch3.addConstraint(Sketcher.Constraint("Equal", 68, 69))
sketch3.addConstraint(Sketcher.Constraint("Equal", 69, 70))
sketch3.addConstraint(Sketcher.Constraint("Equal", 70, 71))
sketch3.addConstraint(Sketcher.Constraint("Equal", 71, 72))
sketch3.addConstraint(Sketcher.Constraint("Symmetric", 6, 3, 38, 3, -1, 1))
sketch3.addConstraint(Sketcher.Constraint("Symmetric", 8, 3, 40, 3, -1, 1))
sketch3.addConstraint(Sketcher.Constraint("Symmetric", 10, 3, 42, 3, -1, 1))
sketch3.addConstraint(Sketcher.Constraint("Symmetric", 16, 3, 48, 3, -1, 1))
sketch3.addConstraint(Sketcher.Constraint("Symmetric", 18, 3, 50, 3, -1, 1))
sketch3.addConstraint(Sketcher.Constraint("Symmetric", 24, 3, 56, 3, -1, 1))
sketch3.addConstraint(Sketcher.Constraint("Symmetric", 26, 3, 58, 3, -1, 1))
sketch3.addConstraint(Sketcher.Constraint("Symmetric", 28, 3, 60, 3, -1, 1))
sketch3.addConstraint(Sketcher.Constraint("Symmetric", 32, 3, 34, 3, -2))
sketch3.addConstraint(Sketcher.Constraint("Symmetric", 26, 3, 40, 3, -2))
sketch3.addConstraint(Sketcher.Constraint("Symmetric", 24, 3, 42, 3, -2))
sketch3.addConstraint(Sketcher.Constraint("Symmetric", 18, 3, 48, 3, -2))
sketch3.addConstraint(Sketcher.Constraint("Symmetric", 4, 3, 62, 3, -2))
sketch3.addConstraint(Sketcher.Constraint("Parallel", 7, 11))
sketch3.addConstraint(Sketcher.Constraint("Perpendicular", 11, 23))
sketch3.addConstraint(Sketcher.Constraint("Parallel", 23, 27))
sketch3.addConstraint(Sketcher.Constraint("Parallel", 39, 43))
sketch3.addConstraint(Sketcher.Constraint("Perpendicular", 43, 55))
sketch3.addConstraint(Sketcher.Constraint("Horizontal", 28, 3, 38, 3))
sketch3.addConstraint(Sketcher.Constraint("Horizontal", 3, 3, 63, 3))
sketch3.addConstraint(Sketcher.Constraint("Vertical", 5, 1, 28, 2))
sketch3.addConstraint(Sketcher.Constraint("Equal", 51, 31))
sketch3.addConstraint(Sketcher.Constraint("Equal", 7, 11))
sketch3.addConstraint(Sketcher.Constraint("Diameter", 64, 3.4))
sketch3.addConstraint(Sketcher.Constraint("Radius", 3, 4.1))
sketch3.addConstraint(Sketcher.Constraint("Radius", 1, 21.75))
sketch3.addConstraint(Sketcher.Constraint("DistanceX", -1, 1, 3, 3, 4.6))
sketch3.addConstraint(Sketcher.Constraint("DistanceY", -1, 1, 14, 2, 1.2))
sketch3.addConstraint(Sketcher.Constraint("DistanceX", -1, 1, 30, 2, 1.2))
sketch3.addConstraint(Sketcher.Constraint("Diameter", 65, 1.93704))
sketch3.addConstraint(Sketcher.Constraint("Radius", 4, 1.698162))
sketch3.addConstraint(Sketcher.Constraint("Radius", 5, 24.178362))
sketch3.addConstraint(Sketcher.Constraint("Radius", 13, 24.178392))
sketch3.addConstraint(Sketcher.Constraint("Radius", 6, 2.047333))
sketch3.addConstraint(Sketcher.Constraint("DistanceX", 15, 1, 15, 2, 1.784786))
sketch3.addConstraint(Sketcher.Constraint("DistanceY", 0, 2, 0, 1, 2.167304))
sketch3.addConstraint(Sketcher.Constraint("DistanceY", -1, 1, 8, 3, 21.95992))
sketch3.addConstraint(Sketcher.Constraint("DistanceX", -1, 1, 10, 3, 21.95992))
sketch3.addConstraint(Sketcher.Constraint("DistanceX", -1, 1, 7, 2, 18.815181))
pad2 = body2.newObject("PartDesign::Pad", "Pad001")
pad2.Profile = sketch3
pad2.Length = 12
pad2.Reversed = True

# Sketch on XZ plane
sketch4 = body2.newObject("Sketcher::SketchObject", "Sketch003")
sketch4.AttachmentSupport = (doc.getObject("XZ_Plane001"), [""])
sketch4.MapMode = "FlatFace"
sketch4.AttachmentOffset = App.Placement(App.Vector(0, 0, 11), App.Rotation())
sketch4.addGeometry(Part.Circle(App.Vector(0, 0, 0), App.Vector(0, 0, 1), 37.128313), False)
sketch4.addGeometry(Part.Circle(App.Vector(-23.354544, -23.354544, 0), App.Vector(0, 0, 1), 1.7), False)
sketch4.addGeometry(Part.Circle(App.Vector(0, -33.028313, 0), App.Vector(0, 0, 1), 1.7), False)
sketch4.addGeometry(Part.Circle(App.Vector(23.354544, -23.354544, 0), App.Vector(0, 0, 1), 1.7), False)
sketch4.addGeometry(Part.Circle(App.Vector(-33.028313, 0, 0), App.Vector(0, 0, 1), 1.7), False)
sketch4.addGeometry(Part.Circle(App.Vector(-23.354544, 23.354544, 0), App.Vector(0, 0, 1), 1.7), False)
sketch4.addGeometry(Part.Circle(App.Vector(-4.6, 23.911556, 0), App.Vector(0, 0, 1), 1.7), False)
sketch4.addGeometry(Part.Circle(App.Vector(0, 0, 0), App.Vector(0, 0, 1), 21.75), False)
sketch4.addGeometry(Part.Circle(App.Vector(33.028313, 0, 0), App.Vector(0, 0, 1), 1.7), False)
sketch4.addGeometry(Part.Circle(App.Vector(4.6, 23.911556, 0), App.Vector(0, 0, 1), 1.7), False)
sketch4.addGeometry(Part.Circle(App.Vector(23.354544, 23.354544, 0), App.Vector(0, 0, 1), 1.7), False)
sketch4.addConstraint(Sketcher.Constraint("Coincident", 0, 3, -1, 1))
sketch4.addConstraint(Sketcher.Constraint("Coincident", 7, 3, -1, 1))
sketch4.addConstraint(Sketcher.Constraint("Equal", 1, 2))
sketch4.addConstraint(Sketcher.Constraint("Equal", 2, 3))
sketch4.addConstraint(Sketcher.Constraint("Equal", 3, 4))
sketch4.addConstraint(Sketcher.Constraint("Equal", 4, 5))
sketch4.addConstraint(Sketcher.Constraint("Equal", 5, 6))
sketch4.addConstraint(Sketcher.Constraint("Equal", 6, 8))
sketch4.addConstraint(Sketcher.Constraint("Equal", 8, 9))
sketch4.addConstraint(Sketcher.Constraint("Equal", 9, 10))
sketch4.addConstraint(Sketcher.Constraint("Symmetric", 3, 3, 5, 3, -1, 1))
sketch4.addConstraint(Sketcher.Constraint("Symmetric", 4, 3, 8, 3, -1, 1))
sketch4.addConstraint(Sketcher.Constraint("Symmetric", 1, 3, 10, 3, -1, 1))
sketch4.addConstraint(Sketcher.Constraint("Symmetric", 1, 3, 3, 3, -2))
sketch4.addConstraint(Sketcher.Constraint("Symmetric", 6, 3, 9, 3, -2))
sketch4.addConstraint(Sketcher.Constraint("PointOnObject", 2, 3, -2))
sketch4.addConstraint(Sketcher.Constraint("PointOnObject", 4, 3, -1))
sketch4.addConstraint(Sketcher.Constraint("Diameter", 1, 3.4))
sketch4.addConstraint(Sketcher.Constraint("Diameter", 7, 43.5))
sketch4.addConstraint(Sketcher.Constraint("DistanceX", 6, 3, -1, 1, 4.6))
sketch4.addConstraint(Sketcher.Constraint("Diameter", 0, 74.256626))
sketch4.addConstraint(Sketcher.Constraint("DistanceY", 1, 3, 6, 3, 47.2661))
sketch4.addConstraint(Sketcher.Constraint("DistanceY", 2, 3, 1, 3, 9.673769))
sketch4.addConstraint(Sketcher.Constraint("DistanceX", 4, 3, 1, 3, 9.673769))
sketch4.addConstraint(Sketcher.Constraint("DistanceX", 1, 3, -1, 1, 23.354544))
sketch4.addConstraint(Sketcher.Constraint("DistanceY", 1, 3, -1, 1, 23.354544))
pad3 = body2.newObject("PartDesign::Pad", "Pad002")
pad3.Profile = sketch4
pad3.Length = 0.8
pad3.Reversed = True

# Sketch on XZ plane
sketch5 = body2.newObject("Sketcher::SketchObject", "Sketch004")
sketch5.AttachmentSupport = (doc.getObject("XZ_Plane001"), [""])
sketch5.MapMode = "FlatFace"
sketch5.AttachmentOffset = App.Placement(App.Vector(0, 0, 10.2), App.Rotation())
add_polygon(sketch5, [(-0.5, 21.744252), (-0.5, 37.128312), (0.5, 37.128312), (0.5, 21.744252)])  # lines 0-3
sketch5.addConstraint(Sketcher.Constraint("Vertical", 0))
sketch5.addConstraint(Sketcher.Constraint("Horizontal", 1))
sketch5.addConstraint(Sketcher.Constraint("Vertical", 2))
sketch5.addConstraint(Sketcher.Constraint("Horizontal", 3))
sketch5.addConstraint(Sketcher.Constraint("DistanceX", 1, 1, 1, 2, 1.0))
sketch5.addConstraint(Sketcher.Constraint("DistanceX", 0, 2, -1, 1, 0.5))
sketch5.addConstraint(Sketcher.Constraint("DistanceY", 0, 1, 0, 2, 15.384061))
sketch5.addConstraint(Sketcher.Constraint("DistanceY", -1, 1, 2, 2, 21.744252))
pocket2 = body2.newObject("PartDesign::Pocket", "Pocket001")
pocket2.Profile = sketch5
pocket2.Type = "ThroughAll"
pocket2.Reversed = True

# Sketch on XZ plane
sketch6 = body2.newObject("Sketcher::SketchObject", "Sketch005")
sketch6.AttachmentSupport = (doc.getObject("XZ_Plane001"), [""])
sketch6.MapMode = "FlatFace"
sketch6.AttachmentOffset = App.Placement(App.Vector(0, 0, 10.2), App.Rotation())
sketch6.addGeometry(Part.LineSegment(App.Vector(-17.660243, 24.702466, 0), App.Vector(-16.64582, 24.702466, 0)), False)
sketch6.addGeometry(Part.BSplineCurve([App.Vector(-15.038448, 22.856312, 0), App.Vector(-15.090337, 22.857376, 0), App.Vector(-15.192417, 22.85947, 0), App.Vector(-15.342756, 22.881072, 0), App.Vector(-15.487062, 22.916244, 0), App.Vector(-15.625823, 22.965031, 0), App.Vector(-15.760043, 23.02522, 0), App.Vector(-15.886441, 23.103195, 0), App.Vector(-16.007083, 23.193904, 0), App.Vector(-16.123564, 23.295711, 0), App.Vector(-16.229575, 23.415151, 0), App.Vector(-16.324393, 23.550809, 0), App.Vector(-16.408122, 23.702831, 0), App.Vector(-16.47969, 23.870954, 0), App.Vector(-16.539001, 24.055616, 0), App.Vector(-16.58658, 24.256595, 0), App.Vector(-16.623364, 24.473977, 0), App.Vector(-16.638196, 24.624894, 0), App.Vector(-16.64582, 24.702466, 0)], [4, 1, 1, 1, 1, 1, 1, 1, 1, 1, 1, 1, 1, 1, 1, 1, 4], [0, 0.000156, 0.000306, 0.000455, 0.000601, 0.000747, 0.000895, 0.001045, 0.001199, 0.001358, 0.001523, 0.001695, 0.001878, 0.00207, 0.002276, 0.002497, 0.002731], False, 3, [1, 1, 1, 1, 1, 1, 1, 1, 1, 1, 1, 1, 1, 1, 1, 1, 1, 1, 1], False), False)
sketch6.addGeometry(Part.BSplineCurve([App.Vector(-13.455114, 24.375543, 0), App.Vector(-13.456012, 24.324692, 0), App.Vector(-13.457787, 24.224074, 0), App.Vector(-13.481995, 24.076732, 0), App.Vector(-13.516096, 23.933817, 0), App.Vector(-13.568838, 23.797629, 0), App.Vector(-13.632383, 23.665488, 0), App.Vector(-13.711866, 23.539101, 0), App.Vector(-13.807311, 23.419642, 0), App.Vector(-13.913485, 23.304423, 0), App.Vector(-14.030916, 23.200392, 0), App.Vector(-14.154951, 23.107093, 0), App.Vector(-14.287116, 23.031321, 0), App.Vector(-14.423797, 22.965057, 0), App.Vector(-14.569242, 22.918081, 0), App.Vector(-14.719877, 22.883104, 0), App.Vector(-14.876884, 22.858875, 0), App.Vector(-14.983867, 22.857178, 0), App.Vector(-15.038448, 22.856312, 0)], [4, 1, 1, 1, 1, 1, 1, 1, 1, 1, 1, 1, 1, 1, 1, 1, 4], [0, 0.000152, 0.000302, 0.000447, 0.000592, 0.000739, 0.000886, 0.001039, 0.001197, 0.001356, 0.001509, 0.001662, 0.001812, 0.001964, 0.002119, 0.002276, 0.002439], False, 3, [1, 1, 1, 1, 1, 1, 1, 1, 1, 1, 1, 1, 1, 1, 1, 1, 1, 1, 1], False), False)
sketch6.addGeometry(Part.BSplineCurve([App.Vector(-14.907037, 26.758555, 0), App.Vector(-14.834131, 26.680801, 0), App.Vector(-14.694222, 26.53159, 0), App.Vector(-14.49704, 26.313169, 0), App.Vector(-14.319138, 26.111241, 0), App.Vector(-14.159567, 25.925954, 0), App.Vector(-14.022506, 25.754817, 0), App.Vector(-13.904267, 25.600346, 0), App.Vector(-13.806189, 25.461814, 0), App.Vector(-13.704335, 25.298749, 0), App.Vector(-13.603408, 25.10328, 0), App.Vector(-13.517551, 24.864834, 0), App.Vector(-13.466033, 24.621329, 0), App.Vector(-13.458756, 24.457511, 0), App.Vector(-13.455114, 24.375543, 0)], [4, 1, 1, 1, 1, 1, 1, 1, 1, 1, 1, 1, 4], [0, 0.00032, 0.000614, 0.000883, 0.001127, 0.001347, 0.00154, 0.001711, 0.001856, 0.002117, 0.002369, 0.002614, 0.00286], False, 3, [1, 1, 1, 1, 1, 1, 1, 1, 1, 1, 1, 1, 1, 1, 1], False), False)
sketch6.addGeometry(Part.LineSegment(App.Vector(-14.907037, 26.758555, 0), App.Vector(-17.967935, 30.138363, 0)), False)
sketch6.addGeometry(Part.LineSegment(App.Vector(-17.967935, 30.138363, 0), App.Vector(-12.326909, 30.138363, 0)), False)
sketch6.addGeometry(Part.LineSegment(App.Vector(-12.326909, 30.138363, 0), App.Vector(-12.326909, 29.215286, 0)), False)
sketch6.addGeometry(Part.LineSegment(App.Vector(-12.326909, 29.215286, 0), App.Vector(-16.03364, 29.215286, 0)), False)
sketch6.addGeometry(Part.LineSegment(App.Vector(-16.03364, 29.215286, 0), App.Vector(-14.065691, 27.245735, 0)), False)
sketch6.addGeometry(Part.BSplineCurve([App.Vector(-12.429473, 24.364325, 0), App.Vector(-12.433576, 24.473569, 0), App.Vector(-12.441724, 24.690562, 0), App.Vector(-12.504471, 25.01159, 0), App.Vector(-12.609956, 25.322278, 0), App.Vector(-12.731801, 25.575259, 0), App.Vector(-12.855033, 25.779748, 0), App.Vector(-12.968121, 25.948535, 0), App.Vector(-13.100971, 26.131045, 0), App.Vector(-13.256432, 26.326056, 0), App.Vector(-13.428321, 26.53803, 0), App.Vector(-13.623466, 26.7615, 0), App.Vector(-13.835829, 27.000988, 0), App.Vector(-13.987282, 27.162248, 0), App.Vector(-14.065691, 27.245735, 0)], [4, 1, 1, 1, 1, 1, 1, 1, 1, 1, 1, 1, 4], [0, 0.000328, 0.000651, 0.000977, 0.00131, 0.001491, 0.001693, 0.001919, 0.002168, 0.002441, 0.002738, 0.003058, 0.003401], False, 3, [1, 1, 1, 1, 1, 1, 1, 1, 1, 1, 1, 1, 1, 1, 1], False), False)
sketch6.addGeometry(Part.BSplineCurve([App.Vector(-15.001589, 21.933235, 0), App.Vector(-14.906392, 21.935182, 0), App.Vector(-14.719588, 21.939003, 0), App.Vector(-14.447558, 21.974961, 0), App.Vector(-14.190105, 22.032943, 0), App.Vector(-13.947156, 22.112126, 0), App.Vector(-13.719153, 22.217855, 0), App.Vector(-13.505646, 22.345353, 0), App.Vector(-13.308688, 22.498601, 0), App.Vector(-13.126848, 22.670076, 0), App.Vector(-12.966237, 22.858699, 0), App.Vector(-12.821172, 23.052627, 0), App.Vector(-12.701262, 23.255791, 0), App.Vector(-12.600808, 23.464483, 0), App.Vector(-12.523506, 23.680415, 0), App.Vector(-12.468916, 23.902707, 0), App.Vector(-12.436194, 24.131512, 0), App.Vector(-12.431728, 24.286228, 0), App.Vector(-12.429473, 24.364325, 0)], [4, 1, 1, 1, 1, 1, 1, 1, 1, 1, 1, 1, 1, 1, 1, 1, 4], [0, 0.000285, 0.00056, 0.000821, 0.001076, 0.001325, 0.001574, 0.001821, 0.002072, 0.002322, 0.002563, 0.002798, 0.003029, 0.003257, 0.003485, 0.003715, 0.003949], False, 3, [1, 1, 1, 1, 1, 1, 1, 1, 1, 1, 1, 1, 1, 1, 1, 1, 1, 1, 1], False), False)
sketch6.addGeometry(Part.BSplineCurve([App.Vector(-17.660243, 24.702466, 0), App.Vector(-17.655478, 24.599243, 0), App.Vector(-17.646158, 24.397353, 0), App.Vector(-17.604773, 24.103176, 0), App.Vector(-17.537733, 23.825987, 0), App.Vector(-17.453114, 23.563435, 0), App.Vector(-17.340235, 23.318803, 0), App.Vector(-17.209995, 23.087825, 0), App.Vector(-17.052765, 22.875344, 0), App.Vector(-16.875087, 22.681021, 0), App.Vector(-16.682211, 22.504472, 0), App.Vector(-16.474869, 22.352237, 0), App.Vector(-16.256565, 22.22251, 0), App.Vector(-16.027255, 22.116652, 0), App.Vector(-15.786493, 22.034688, 0), App.Vector(-15.534962, 21.975045, 0), App.Vector(-15.271861, 21.939171, 0), App.Vector(-15.092512, 21.935232, 0), App.Vector(-15.001589, 21.933235, 0)], [4, 1, 1, 1, 1, 1, 1, 1, 1, 1, 1, 1, 1, 1, 1, 1, 4], [0, 0.00031, 0.000606, 0.000889, 0.001165, 0.001432, 0.001696, 0.001959, 0.002223, 0.002485, 0.002742, 0.002993, 0.003246, 0.003498, 0.003755, 0.00402, 0.004293], False, 3, [1, 1, 1, 1, 1, 1, 1, 1, 1, 1, 1, 1, 1, 1, 1, 1, 1, 1, 1], False), False)
sketch6.addConstraint(Sketcher.Constraint("Block", 1))
sketch6.addConstraint(Sketcher.Constraint("Block", 2))
sketch6.addConstraint(Sketcher.Constraint("Block", 3))
sketch6.addConstraint(Sketcher.Constraint("Block", 9))
sketch6.addConstraint(Sketcher.Constraint("Block", 10))
sketch6.addConstraint(Sketcher.Constraint("Block", 11))
sketch6.addConstraint(Sketcher.Constraint("Coincident", 0, 2, 1, 2))
sketch6.addConstraint(Sketcher.Constraint("Coincident", 3, 1, 4, 1))
sketch6.addConstraint(Sketcher.Constraint("Coincident", 4, 2, 5, 1))
sketch6.addConstraint(Sketcher.Constraint("Coincident", 5, 2, 6, 1))
sketch6.addConstraint(Sketcher.Constraint("Coincident", 6, 2, 7, 1))
sketch6.addConstraint(Sketcher.Constraint("Coincident", 7, 2, 8, 1))
sketch6.addConstraint(Sketcher.Constraint("Coincident", 8, 2, 9, 2))
sketch6.addConstraint(Sketcher.Constraint("Coincident", 11, 1, 0, 1))
sketch6.addConstraint(Sketcher.Constraint("Horizontal", 5))
sketch6.addConstraint(Sketcher.Constraint("Vertical", 6))
sketch6.addConstraint(Sketcher.Constraint("Horizontal", 7))
sketch6.addConstraint(Sketcher.Constraint("DistanceX", 7, 2, 7, 1, 3.706731))
sketch6.addConstraint(Sketcher.Constraint("DistanceX", 5, 1, 5, 2, 5.641026))
sketch6.addConstraint(Sketcher.Constraint("DistanceY", 6, 2, 6, 1, 0.923077))
sketch6.addConstraint(Sketcher.Constraint("DistanceX", 5, 2, -1, 1, 12.326909))
sketch6.addConstraint(Sketcher.Constraint("DistanceY", 0, 2, 6, 2, 4.51282))
pad4 = body2.newObject("PartDesign::Pad", "Pad003")
pad4.Profile = sketch6
pad4.Length = 0.8
pad4.Reversed = True

doc.recompute()
